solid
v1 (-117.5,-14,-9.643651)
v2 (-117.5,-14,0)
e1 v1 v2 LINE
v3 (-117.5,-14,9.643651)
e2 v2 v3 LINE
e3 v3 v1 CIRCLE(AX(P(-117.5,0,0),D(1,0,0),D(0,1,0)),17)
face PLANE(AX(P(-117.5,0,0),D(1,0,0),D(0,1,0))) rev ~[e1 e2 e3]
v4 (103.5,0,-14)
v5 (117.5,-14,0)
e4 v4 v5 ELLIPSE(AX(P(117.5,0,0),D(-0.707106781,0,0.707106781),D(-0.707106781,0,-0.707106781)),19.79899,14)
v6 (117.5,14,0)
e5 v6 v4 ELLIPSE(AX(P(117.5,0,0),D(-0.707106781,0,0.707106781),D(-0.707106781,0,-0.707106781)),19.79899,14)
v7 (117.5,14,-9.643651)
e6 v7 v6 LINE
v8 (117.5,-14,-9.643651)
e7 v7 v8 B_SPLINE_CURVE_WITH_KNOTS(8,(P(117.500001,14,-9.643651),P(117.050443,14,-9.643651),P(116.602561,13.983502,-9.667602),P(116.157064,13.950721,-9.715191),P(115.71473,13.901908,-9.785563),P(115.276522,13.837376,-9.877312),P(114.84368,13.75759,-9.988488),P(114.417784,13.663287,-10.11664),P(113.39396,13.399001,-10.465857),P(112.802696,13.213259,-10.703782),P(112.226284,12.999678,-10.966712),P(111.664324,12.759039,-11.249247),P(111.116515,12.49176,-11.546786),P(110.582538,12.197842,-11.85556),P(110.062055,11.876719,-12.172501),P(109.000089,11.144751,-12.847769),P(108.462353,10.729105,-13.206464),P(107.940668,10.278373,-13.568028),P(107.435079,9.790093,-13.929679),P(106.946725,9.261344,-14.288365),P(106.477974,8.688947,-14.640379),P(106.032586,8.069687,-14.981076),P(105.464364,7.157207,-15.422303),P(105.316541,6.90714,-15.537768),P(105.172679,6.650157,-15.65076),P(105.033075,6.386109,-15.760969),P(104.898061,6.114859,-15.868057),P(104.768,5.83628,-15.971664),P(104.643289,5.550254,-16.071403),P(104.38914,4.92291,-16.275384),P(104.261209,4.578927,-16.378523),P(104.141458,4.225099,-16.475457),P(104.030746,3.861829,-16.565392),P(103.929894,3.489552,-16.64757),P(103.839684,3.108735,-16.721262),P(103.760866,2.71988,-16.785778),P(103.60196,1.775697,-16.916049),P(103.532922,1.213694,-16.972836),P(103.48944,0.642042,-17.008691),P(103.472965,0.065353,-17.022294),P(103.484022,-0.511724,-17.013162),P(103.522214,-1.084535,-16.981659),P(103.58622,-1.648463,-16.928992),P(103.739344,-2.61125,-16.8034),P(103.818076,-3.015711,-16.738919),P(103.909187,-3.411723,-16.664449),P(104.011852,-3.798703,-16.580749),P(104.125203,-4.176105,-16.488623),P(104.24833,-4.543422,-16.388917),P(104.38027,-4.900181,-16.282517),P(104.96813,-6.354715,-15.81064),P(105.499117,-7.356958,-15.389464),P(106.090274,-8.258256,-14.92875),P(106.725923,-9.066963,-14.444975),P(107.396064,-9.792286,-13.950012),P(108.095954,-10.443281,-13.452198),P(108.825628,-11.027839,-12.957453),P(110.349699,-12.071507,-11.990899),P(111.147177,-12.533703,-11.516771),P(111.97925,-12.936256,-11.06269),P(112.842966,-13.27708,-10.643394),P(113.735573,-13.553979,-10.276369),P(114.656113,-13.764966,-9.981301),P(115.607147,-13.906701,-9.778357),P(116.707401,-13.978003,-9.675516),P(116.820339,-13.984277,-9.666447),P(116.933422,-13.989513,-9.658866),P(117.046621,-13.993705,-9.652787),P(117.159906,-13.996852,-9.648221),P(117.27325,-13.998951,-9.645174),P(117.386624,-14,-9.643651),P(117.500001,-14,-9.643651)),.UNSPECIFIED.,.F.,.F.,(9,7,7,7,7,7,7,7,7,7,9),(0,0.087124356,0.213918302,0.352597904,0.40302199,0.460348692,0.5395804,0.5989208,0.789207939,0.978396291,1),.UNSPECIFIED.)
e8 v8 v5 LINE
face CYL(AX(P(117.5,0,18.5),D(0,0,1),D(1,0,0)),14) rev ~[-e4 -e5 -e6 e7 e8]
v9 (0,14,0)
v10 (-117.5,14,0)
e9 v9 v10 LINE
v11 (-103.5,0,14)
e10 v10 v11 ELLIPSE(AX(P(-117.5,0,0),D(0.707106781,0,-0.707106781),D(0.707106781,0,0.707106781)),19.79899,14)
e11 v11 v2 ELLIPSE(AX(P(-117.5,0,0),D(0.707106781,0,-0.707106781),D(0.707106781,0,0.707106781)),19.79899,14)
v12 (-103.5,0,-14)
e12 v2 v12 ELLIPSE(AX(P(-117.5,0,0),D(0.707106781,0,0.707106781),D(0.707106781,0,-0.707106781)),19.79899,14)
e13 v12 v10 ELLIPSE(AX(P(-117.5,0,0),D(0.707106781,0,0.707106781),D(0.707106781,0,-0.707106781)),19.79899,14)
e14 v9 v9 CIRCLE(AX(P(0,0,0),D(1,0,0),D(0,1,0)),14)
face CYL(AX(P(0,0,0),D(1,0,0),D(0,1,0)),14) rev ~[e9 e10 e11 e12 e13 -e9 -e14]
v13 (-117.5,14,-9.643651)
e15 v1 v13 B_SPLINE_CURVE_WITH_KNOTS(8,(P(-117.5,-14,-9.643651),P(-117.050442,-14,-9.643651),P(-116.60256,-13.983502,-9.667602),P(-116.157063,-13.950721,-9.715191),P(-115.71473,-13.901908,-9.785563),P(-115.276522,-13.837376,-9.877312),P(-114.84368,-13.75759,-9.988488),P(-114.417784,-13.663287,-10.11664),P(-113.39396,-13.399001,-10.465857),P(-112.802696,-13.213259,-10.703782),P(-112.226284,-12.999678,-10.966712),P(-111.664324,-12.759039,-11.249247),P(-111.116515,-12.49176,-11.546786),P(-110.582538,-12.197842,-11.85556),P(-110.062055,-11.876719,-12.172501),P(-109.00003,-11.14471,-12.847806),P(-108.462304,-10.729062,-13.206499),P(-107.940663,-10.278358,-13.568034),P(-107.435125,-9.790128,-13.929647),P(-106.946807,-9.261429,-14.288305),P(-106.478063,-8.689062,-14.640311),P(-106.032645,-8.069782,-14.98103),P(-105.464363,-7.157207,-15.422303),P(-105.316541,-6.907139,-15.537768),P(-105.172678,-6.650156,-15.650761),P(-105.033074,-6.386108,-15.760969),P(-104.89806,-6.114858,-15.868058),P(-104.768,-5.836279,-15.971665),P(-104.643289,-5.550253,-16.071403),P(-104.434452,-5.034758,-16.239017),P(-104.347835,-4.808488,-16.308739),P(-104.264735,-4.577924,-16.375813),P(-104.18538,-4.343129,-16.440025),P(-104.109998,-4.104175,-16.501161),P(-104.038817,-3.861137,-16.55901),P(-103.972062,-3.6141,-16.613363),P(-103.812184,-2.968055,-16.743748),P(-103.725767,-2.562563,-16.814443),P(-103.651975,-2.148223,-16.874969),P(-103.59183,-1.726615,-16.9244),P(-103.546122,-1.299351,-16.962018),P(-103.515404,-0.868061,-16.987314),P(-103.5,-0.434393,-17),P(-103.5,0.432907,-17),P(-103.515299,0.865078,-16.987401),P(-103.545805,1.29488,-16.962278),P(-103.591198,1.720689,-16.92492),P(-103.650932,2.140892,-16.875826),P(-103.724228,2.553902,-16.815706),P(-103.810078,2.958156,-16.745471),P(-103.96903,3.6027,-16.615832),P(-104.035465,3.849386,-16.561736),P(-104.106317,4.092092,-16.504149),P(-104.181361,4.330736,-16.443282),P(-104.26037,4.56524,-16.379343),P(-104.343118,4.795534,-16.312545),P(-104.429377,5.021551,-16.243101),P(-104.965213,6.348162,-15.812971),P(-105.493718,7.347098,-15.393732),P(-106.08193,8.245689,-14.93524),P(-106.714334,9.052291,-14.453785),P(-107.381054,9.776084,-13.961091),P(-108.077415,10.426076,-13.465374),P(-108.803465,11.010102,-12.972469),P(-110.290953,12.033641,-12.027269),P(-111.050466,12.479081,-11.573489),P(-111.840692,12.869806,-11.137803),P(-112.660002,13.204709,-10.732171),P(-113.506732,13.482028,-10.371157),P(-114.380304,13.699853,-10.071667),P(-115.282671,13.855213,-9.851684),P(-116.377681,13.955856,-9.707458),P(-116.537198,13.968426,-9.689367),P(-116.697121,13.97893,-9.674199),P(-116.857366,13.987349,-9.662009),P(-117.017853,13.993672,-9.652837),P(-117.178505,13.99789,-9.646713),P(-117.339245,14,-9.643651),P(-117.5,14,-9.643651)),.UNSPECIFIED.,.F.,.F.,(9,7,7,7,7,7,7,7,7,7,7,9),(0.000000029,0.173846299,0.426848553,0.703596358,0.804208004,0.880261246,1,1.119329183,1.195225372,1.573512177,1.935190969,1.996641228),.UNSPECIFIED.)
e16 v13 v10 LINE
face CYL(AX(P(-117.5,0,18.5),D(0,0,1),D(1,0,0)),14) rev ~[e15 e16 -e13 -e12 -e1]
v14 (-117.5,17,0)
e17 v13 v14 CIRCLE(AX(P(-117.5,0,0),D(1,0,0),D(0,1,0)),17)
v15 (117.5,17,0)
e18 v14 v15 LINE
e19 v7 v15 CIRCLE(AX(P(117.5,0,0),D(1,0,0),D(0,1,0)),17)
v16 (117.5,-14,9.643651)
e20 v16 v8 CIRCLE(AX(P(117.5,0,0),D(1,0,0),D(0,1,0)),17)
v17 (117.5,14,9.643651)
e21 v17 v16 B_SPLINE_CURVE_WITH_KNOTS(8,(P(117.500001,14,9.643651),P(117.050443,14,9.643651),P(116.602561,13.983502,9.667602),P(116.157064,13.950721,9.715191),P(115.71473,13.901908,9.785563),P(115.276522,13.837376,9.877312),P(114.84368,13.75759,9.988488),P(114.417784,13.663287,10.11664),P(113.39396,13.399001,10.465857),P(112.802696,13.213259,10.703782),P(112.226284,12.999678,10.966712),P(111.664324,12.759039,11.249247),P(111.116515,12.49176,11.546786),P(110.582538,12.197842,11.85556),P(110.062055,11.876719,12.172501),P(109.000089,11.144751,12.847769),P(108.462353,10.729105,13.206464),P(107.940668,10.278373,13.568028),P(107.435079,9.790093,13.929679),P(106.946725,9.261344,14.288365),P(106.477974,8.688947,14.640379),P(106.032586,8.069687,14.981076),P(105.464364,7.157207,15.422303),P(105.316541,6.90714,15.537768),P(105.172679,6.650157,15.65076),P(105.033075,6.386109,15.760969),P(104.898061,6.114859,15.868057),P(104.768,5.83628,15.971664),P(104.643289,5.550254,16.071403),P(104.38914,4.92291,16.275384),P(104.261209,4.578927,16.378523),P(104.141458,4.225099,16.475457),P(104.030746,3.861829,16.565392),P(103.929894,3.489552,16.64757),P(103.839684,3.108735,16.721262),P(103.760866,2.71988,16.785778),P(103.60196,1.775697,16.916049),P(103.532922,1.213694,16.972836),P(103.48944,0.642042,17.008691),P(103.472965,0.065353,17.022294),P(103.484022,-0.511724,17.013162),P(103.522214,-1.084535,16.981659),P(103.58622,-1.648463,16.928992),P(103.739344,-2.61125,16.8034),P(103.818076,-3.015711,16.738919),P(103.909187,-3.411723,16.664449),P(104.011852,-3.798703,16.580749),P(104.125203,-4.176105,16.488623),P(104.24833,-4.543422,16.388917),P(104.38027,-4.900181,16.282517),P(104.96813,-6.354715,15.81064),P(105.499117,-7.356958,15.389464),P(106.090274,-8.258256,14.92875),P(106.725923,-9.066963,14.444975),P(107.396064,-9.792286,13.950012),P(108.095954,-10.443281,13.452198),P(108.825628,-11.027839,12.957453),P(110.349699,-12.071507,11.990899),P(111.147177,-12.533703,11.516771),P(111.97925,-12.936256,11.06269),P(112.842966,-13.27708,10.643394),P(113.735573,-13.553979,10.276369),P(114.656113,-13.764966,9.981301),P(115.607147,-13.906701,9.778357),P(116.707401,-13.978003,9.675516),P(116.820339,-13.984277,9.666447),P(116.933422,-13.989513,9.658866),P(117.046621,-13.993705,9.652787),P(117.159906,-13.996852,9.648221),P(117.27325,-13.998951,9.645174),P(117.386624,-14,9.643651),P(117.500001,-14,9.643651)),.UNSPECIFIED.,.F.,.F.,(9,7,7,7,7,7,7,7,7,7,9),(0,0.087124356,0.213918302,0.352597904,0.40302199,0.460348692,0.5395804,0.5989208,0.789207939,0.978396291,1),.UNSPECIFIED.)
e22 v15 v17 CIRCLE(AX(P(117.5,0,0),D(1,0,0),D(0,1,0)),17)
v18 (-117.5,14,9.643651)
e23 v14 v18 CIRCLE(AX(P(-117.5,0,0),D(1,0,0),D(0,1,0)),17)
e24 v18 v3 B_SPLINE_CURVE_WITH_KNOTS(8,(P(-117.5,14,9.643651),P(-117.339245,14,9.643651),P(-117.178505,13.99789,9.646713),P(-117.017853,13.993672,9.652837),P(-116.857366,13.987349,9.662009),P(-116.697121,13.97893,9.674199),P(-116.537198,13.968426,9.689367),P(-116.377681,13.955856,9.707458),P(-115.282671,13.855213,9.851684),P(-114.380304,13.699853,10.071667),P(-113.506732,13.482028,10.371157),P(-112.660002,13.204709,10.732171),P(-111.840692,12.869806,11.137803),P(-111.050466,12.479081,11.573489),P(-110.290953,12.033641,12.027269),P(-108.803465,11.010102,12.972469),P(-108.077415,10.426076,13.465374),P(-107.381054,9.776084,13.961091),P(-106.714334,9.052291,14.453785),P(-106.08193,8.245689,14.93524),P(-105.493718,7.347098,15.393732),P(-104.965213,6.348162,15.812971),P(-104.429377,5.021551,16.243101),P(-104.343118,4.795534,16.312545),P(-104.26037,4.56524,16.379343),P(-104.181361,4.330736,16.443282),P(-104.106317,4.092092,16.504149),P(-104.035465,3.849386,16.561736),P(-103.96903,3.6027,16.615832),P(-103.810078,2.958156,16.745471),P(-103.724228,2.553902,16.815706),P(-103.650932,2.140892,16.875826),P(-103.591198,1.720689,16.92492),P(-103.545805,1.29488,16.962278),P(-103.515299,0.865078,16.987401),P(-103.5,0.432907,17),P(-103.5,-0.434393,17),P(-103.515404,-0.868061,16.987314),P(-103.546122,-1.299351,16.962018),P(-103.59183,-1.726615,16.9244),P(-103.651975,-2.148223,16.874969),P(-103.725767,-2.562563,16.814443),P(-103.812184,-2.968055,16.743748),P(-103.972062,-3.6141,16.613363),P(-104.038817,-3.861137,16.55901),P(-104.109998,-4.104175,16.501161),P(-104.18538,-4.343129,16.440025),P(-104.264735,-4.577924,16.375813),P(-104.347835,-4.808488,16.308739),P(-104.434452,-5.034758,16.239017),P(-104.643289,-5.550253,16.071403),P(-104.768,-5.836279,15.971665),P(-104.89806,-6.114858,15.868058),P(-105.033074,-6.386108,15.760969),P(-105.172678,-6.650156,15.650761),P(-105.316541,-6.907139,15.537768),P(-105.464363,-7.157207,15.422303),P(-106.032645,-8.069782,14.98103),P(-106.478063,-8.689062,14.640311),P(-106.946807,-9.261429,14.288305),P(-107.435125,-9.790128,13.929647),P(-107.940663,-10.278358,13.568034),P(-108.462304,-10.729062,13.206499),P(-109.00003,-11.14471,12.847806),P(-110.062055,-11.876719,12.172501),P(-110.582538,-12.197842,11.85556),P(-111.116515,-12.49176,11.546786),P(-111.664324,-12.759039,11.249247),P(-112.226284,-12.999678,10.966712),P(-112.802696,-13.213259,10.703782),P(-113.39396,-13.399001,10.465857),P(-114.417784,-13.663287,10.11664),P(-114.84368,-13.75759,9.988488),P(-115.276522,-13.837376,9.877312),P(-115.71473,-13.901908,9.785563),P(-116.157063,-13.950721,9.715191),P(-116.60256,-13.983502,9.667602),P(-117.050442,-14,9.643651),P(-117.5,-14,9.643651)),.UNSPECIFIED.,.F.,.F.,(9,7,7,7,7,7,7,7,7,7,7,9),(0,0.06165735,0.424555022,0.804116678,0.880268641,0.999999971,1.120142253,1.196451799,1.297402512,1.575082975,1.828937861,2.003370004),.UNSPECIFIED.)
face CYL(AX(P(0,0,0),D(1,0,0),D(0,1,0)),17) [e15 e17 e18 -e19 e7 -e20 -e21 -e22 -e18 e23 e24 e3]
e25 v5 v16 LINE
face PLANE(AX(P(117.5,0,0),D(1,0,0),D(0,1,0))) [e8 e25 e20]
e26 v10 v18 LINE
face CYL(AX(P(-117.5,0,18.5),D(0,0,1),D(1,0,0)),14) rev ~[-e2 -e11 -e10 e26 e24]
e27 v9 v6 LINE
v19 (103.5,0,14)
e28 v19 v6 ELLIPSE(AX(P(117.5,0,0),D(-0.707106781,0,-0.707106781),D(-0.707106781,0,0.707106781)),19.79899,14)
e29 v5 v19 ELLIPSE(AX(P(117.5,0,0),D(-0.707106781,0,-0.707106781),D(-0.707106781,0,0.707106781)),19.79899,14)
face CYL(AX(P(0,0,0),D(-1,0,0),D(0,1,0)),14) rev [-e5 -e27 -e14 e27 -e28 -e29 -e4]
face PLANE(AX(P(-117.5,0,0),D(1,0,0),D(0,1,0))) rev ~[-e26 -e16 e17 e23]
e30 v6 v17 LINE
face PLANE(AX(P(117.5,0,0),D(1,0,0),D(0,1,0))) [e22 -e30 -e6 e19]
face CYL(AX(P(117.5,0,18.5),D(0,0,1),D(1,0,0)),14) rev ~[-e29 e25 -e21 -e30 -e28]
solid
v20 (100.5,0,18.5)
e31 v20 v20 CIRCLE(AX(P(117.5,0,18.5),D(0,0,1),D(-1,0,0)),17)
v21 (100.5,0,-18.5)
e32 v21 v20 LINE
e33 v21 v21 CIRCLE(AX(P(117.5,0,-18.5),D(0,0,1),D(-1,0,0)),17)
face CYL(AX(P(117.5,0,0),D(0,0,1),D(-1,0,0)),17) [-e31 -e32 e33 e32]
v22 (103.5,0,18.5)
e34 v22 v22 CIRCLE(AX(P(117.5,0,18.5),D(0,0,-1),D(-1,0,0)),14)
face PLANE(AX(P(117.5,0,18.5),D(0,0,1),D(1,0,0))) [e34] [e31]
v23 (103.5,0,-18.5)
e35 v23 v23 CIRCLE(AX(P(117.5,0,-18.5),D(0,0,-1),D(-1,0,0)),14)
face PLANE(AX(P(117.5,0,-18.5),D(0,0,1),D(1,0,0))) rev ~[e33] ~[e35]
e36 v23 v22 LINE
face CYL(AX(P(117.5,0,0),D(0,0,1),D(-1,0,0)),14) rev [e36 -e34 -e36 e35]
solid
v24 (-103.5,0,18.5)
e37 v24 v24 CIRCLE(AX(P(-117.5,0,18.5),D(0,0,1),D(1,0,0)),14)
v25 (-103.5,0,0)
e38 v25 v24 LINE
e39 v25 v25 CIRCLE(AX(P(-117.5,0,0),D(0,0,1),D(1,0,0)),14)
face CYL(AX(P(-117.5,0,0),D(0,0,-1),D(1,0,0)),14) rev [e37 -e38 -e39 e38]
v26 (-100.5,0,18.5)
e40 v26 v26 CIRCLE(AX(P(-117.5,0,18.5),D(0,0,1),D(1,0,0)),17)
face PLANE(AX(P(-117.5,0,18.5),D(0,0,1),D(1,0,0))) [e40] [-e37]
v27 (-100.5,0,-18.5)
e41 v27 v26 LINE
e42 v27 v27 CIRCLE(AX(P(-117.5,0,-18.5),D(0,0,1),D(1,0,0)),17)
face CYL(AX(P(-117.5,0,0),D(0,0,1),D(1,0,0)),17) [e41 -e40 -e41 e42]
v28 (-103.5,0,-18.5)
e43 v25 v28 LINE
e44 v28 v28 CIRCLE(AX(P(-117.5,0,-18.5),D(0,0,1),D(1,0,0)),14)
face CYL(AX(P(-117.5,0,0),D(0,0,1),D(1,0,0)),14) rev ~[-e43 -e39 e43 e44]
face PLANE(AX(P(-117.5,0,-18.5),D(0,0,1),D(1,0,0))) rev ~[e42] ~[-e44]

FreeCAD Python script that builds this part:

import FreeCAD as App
import Part
import Sketcher

V = App.Vector

doc = App.newDocument("Part")
body = doc.addObject("PartDesign::Body", "Body")

# Sketch on XY plane
sketch1 = doc.addObject("Sketcher::SketchObject", "Sketch")
body.addObject(sketch1)
sketch1.AttachmentSupport = (doc.XY_Plane, [""])
sketch1.MapMode = "FlatFace"
sketch1.addGeometry(Part.Circle(V(-118, 0, 0), V(0, 0, 1), 17), False)
sketch1.addGeometry(Part.Circle(V(-118, 0, 0), V(0, 0, 1), 14), False)
sketch1.addConstraint(Sketcher.Constraint("Coincident", 1, 3, 0, 3))
sketch1.addConstraint(Sketcher.Constraint("PointOnObject", 0, 3, -1))
sketch1.addConstraint(Sketcher.Constraint("Diameter", 0, 34.0))
sketch1.addConstraint(Sketcher.Constraint("Diameter", 1, 28.0))
sketch1.addConstraint(Sketcher.Constraint("DistanceX", 0, 3, -1, 1, 117.5))
pad1 = doc.addObject("PartDesign::Pad", "Pad")
body.addObject(pad1)
pad1.Profile = sketch1
pad1.Type = "TwoLengths"
pad1.Length = 18.5
pad1.Length2 = 18.5
body2 = doc.addObject("PartDesign::Body", "Body001")

# Sketch on XY plane
sketch2 = doc.addObject("Sketcher::SketchObject", "Sketch001")
body2.addObject(sketch2)
sketch2.AttachmentSupport = (doc.getObject("XY_Plane001"), [""])
sketch2.MapMode = "FlatFace"
sketch2.addGeometry(Part.Circle(V(118, 0, 0), V(0, 0, 1), 17), False)
sketch2.addGeometry(Part.Circle(V(118, 0, 0), V(0, 0, 1), 14), False)
sketch2.addConstraint(Sketcher.Constraint("Coincident", 1, 3, 0, 3))
sketch2.addConstraint(Sketcher.Constraint("PointOnObject", 0, 3, -1))
sketch2.addConstraint(Sketcher.Constraint("Diameter", 0, 34.0))
sketch2.addConstraint(Sketcher.Constraint("Diameter", 1, 28.0))
sketch2.addConstraint(Sketcher.Constraint("DistanceX", -1, 1, 0, 3, 117.5))
pad2 = doc.addObject("PartDesign::Pad", "Pad001")
body2.addObject(pad2)
pad2.Profile = sketch2
pad2.Type = "TwoLengths"
pad2.Length = 18.5
pad2.Length2 = 18.5
body3 = doc.addObject("PartDesign::Body", "Body002")

# Sketch on YZ plane
sketch3 = doc.addObject("Sketcher::SketchObject", "Sketch002")
body3.addObject(sketch3)
sketch3.AttachmentSupport = (doc.getObject("YZ_Plane002"), [""])
sketch3.MapMode = "FlatFace"
sketch3.addGeometry(Part.Circle(V(0, 0, 0), V(0, 0, 1), 17), False)
sketch3.addGeometry(Part.Circle(V(0, 0, 0), V(0, 0, 1), 14), False)
sketch3.addConstraint(Sketcher.Constraint("Coincident", 0, 3, -1, 1))
sketch3.addConstraint(Sketcher.Constraint("Coincident", 1, 3, -1, 1))
sketch3.addConstraint(Sketcher.Constraint("Diameter", 0, 34.0))
sketch3.addConstraint(Sketcher.Constraint("Diameter", 1, 28.0))
pad3 = doc.addObject("PartDesign::Pad", "Pad002")
body3.addObject(pad3)
pad3.Profile = sketch3
pad3.Type = "TwoLengths"
pad3.Length = 117.5
pad3.Length2 = 117.5

# Sketch on XY plane
sketch4 = doc.addObject("Sketcher::SketchObject", "Sketch003")
body3.addObject(sketch4)
sketch4.AttachmentSupport = (doc.getObject("XY_Plane002"), [""])
sketch4.MapMode = "FlatFace"
sketch4.AttachmentOffset = App.Placement(V(0, 0, 18.5), App.Rotation())
sketch4.addGeometry(Part.Circle(V(-118, 0, 0), V(0, 0, 1), 14), False)
sketch4.addGeometry(Part.Circle(V(118, 0, 0), V(0, 0, 1), 14), False)
sketch4.addConstraint(Sketcher.Constraint("Equal", 0, 1))
sketch4.addConstraint(Sketcher.Constraint("Symmetric", 0, 3, 1, 3, -1, 1))
sketch4.addConstraint(Sketcher.Constraint("PointOnObject", 0, 3, -1))
sketch4.addConstraint(Sketcher.Constraint("Diameter", 0, 28.0))
sketch4.addConstraint(Sketcher.Constraint("DistanceX", 0, 3, 1, 3, 235.0))
pocket1 = doc.addObject("PartDesign::Pocket", "Pocket")
body3.addObject(pocket1)
pocket1.Profile = sketch4
pocket1.Length = 60

doc.recompute()
